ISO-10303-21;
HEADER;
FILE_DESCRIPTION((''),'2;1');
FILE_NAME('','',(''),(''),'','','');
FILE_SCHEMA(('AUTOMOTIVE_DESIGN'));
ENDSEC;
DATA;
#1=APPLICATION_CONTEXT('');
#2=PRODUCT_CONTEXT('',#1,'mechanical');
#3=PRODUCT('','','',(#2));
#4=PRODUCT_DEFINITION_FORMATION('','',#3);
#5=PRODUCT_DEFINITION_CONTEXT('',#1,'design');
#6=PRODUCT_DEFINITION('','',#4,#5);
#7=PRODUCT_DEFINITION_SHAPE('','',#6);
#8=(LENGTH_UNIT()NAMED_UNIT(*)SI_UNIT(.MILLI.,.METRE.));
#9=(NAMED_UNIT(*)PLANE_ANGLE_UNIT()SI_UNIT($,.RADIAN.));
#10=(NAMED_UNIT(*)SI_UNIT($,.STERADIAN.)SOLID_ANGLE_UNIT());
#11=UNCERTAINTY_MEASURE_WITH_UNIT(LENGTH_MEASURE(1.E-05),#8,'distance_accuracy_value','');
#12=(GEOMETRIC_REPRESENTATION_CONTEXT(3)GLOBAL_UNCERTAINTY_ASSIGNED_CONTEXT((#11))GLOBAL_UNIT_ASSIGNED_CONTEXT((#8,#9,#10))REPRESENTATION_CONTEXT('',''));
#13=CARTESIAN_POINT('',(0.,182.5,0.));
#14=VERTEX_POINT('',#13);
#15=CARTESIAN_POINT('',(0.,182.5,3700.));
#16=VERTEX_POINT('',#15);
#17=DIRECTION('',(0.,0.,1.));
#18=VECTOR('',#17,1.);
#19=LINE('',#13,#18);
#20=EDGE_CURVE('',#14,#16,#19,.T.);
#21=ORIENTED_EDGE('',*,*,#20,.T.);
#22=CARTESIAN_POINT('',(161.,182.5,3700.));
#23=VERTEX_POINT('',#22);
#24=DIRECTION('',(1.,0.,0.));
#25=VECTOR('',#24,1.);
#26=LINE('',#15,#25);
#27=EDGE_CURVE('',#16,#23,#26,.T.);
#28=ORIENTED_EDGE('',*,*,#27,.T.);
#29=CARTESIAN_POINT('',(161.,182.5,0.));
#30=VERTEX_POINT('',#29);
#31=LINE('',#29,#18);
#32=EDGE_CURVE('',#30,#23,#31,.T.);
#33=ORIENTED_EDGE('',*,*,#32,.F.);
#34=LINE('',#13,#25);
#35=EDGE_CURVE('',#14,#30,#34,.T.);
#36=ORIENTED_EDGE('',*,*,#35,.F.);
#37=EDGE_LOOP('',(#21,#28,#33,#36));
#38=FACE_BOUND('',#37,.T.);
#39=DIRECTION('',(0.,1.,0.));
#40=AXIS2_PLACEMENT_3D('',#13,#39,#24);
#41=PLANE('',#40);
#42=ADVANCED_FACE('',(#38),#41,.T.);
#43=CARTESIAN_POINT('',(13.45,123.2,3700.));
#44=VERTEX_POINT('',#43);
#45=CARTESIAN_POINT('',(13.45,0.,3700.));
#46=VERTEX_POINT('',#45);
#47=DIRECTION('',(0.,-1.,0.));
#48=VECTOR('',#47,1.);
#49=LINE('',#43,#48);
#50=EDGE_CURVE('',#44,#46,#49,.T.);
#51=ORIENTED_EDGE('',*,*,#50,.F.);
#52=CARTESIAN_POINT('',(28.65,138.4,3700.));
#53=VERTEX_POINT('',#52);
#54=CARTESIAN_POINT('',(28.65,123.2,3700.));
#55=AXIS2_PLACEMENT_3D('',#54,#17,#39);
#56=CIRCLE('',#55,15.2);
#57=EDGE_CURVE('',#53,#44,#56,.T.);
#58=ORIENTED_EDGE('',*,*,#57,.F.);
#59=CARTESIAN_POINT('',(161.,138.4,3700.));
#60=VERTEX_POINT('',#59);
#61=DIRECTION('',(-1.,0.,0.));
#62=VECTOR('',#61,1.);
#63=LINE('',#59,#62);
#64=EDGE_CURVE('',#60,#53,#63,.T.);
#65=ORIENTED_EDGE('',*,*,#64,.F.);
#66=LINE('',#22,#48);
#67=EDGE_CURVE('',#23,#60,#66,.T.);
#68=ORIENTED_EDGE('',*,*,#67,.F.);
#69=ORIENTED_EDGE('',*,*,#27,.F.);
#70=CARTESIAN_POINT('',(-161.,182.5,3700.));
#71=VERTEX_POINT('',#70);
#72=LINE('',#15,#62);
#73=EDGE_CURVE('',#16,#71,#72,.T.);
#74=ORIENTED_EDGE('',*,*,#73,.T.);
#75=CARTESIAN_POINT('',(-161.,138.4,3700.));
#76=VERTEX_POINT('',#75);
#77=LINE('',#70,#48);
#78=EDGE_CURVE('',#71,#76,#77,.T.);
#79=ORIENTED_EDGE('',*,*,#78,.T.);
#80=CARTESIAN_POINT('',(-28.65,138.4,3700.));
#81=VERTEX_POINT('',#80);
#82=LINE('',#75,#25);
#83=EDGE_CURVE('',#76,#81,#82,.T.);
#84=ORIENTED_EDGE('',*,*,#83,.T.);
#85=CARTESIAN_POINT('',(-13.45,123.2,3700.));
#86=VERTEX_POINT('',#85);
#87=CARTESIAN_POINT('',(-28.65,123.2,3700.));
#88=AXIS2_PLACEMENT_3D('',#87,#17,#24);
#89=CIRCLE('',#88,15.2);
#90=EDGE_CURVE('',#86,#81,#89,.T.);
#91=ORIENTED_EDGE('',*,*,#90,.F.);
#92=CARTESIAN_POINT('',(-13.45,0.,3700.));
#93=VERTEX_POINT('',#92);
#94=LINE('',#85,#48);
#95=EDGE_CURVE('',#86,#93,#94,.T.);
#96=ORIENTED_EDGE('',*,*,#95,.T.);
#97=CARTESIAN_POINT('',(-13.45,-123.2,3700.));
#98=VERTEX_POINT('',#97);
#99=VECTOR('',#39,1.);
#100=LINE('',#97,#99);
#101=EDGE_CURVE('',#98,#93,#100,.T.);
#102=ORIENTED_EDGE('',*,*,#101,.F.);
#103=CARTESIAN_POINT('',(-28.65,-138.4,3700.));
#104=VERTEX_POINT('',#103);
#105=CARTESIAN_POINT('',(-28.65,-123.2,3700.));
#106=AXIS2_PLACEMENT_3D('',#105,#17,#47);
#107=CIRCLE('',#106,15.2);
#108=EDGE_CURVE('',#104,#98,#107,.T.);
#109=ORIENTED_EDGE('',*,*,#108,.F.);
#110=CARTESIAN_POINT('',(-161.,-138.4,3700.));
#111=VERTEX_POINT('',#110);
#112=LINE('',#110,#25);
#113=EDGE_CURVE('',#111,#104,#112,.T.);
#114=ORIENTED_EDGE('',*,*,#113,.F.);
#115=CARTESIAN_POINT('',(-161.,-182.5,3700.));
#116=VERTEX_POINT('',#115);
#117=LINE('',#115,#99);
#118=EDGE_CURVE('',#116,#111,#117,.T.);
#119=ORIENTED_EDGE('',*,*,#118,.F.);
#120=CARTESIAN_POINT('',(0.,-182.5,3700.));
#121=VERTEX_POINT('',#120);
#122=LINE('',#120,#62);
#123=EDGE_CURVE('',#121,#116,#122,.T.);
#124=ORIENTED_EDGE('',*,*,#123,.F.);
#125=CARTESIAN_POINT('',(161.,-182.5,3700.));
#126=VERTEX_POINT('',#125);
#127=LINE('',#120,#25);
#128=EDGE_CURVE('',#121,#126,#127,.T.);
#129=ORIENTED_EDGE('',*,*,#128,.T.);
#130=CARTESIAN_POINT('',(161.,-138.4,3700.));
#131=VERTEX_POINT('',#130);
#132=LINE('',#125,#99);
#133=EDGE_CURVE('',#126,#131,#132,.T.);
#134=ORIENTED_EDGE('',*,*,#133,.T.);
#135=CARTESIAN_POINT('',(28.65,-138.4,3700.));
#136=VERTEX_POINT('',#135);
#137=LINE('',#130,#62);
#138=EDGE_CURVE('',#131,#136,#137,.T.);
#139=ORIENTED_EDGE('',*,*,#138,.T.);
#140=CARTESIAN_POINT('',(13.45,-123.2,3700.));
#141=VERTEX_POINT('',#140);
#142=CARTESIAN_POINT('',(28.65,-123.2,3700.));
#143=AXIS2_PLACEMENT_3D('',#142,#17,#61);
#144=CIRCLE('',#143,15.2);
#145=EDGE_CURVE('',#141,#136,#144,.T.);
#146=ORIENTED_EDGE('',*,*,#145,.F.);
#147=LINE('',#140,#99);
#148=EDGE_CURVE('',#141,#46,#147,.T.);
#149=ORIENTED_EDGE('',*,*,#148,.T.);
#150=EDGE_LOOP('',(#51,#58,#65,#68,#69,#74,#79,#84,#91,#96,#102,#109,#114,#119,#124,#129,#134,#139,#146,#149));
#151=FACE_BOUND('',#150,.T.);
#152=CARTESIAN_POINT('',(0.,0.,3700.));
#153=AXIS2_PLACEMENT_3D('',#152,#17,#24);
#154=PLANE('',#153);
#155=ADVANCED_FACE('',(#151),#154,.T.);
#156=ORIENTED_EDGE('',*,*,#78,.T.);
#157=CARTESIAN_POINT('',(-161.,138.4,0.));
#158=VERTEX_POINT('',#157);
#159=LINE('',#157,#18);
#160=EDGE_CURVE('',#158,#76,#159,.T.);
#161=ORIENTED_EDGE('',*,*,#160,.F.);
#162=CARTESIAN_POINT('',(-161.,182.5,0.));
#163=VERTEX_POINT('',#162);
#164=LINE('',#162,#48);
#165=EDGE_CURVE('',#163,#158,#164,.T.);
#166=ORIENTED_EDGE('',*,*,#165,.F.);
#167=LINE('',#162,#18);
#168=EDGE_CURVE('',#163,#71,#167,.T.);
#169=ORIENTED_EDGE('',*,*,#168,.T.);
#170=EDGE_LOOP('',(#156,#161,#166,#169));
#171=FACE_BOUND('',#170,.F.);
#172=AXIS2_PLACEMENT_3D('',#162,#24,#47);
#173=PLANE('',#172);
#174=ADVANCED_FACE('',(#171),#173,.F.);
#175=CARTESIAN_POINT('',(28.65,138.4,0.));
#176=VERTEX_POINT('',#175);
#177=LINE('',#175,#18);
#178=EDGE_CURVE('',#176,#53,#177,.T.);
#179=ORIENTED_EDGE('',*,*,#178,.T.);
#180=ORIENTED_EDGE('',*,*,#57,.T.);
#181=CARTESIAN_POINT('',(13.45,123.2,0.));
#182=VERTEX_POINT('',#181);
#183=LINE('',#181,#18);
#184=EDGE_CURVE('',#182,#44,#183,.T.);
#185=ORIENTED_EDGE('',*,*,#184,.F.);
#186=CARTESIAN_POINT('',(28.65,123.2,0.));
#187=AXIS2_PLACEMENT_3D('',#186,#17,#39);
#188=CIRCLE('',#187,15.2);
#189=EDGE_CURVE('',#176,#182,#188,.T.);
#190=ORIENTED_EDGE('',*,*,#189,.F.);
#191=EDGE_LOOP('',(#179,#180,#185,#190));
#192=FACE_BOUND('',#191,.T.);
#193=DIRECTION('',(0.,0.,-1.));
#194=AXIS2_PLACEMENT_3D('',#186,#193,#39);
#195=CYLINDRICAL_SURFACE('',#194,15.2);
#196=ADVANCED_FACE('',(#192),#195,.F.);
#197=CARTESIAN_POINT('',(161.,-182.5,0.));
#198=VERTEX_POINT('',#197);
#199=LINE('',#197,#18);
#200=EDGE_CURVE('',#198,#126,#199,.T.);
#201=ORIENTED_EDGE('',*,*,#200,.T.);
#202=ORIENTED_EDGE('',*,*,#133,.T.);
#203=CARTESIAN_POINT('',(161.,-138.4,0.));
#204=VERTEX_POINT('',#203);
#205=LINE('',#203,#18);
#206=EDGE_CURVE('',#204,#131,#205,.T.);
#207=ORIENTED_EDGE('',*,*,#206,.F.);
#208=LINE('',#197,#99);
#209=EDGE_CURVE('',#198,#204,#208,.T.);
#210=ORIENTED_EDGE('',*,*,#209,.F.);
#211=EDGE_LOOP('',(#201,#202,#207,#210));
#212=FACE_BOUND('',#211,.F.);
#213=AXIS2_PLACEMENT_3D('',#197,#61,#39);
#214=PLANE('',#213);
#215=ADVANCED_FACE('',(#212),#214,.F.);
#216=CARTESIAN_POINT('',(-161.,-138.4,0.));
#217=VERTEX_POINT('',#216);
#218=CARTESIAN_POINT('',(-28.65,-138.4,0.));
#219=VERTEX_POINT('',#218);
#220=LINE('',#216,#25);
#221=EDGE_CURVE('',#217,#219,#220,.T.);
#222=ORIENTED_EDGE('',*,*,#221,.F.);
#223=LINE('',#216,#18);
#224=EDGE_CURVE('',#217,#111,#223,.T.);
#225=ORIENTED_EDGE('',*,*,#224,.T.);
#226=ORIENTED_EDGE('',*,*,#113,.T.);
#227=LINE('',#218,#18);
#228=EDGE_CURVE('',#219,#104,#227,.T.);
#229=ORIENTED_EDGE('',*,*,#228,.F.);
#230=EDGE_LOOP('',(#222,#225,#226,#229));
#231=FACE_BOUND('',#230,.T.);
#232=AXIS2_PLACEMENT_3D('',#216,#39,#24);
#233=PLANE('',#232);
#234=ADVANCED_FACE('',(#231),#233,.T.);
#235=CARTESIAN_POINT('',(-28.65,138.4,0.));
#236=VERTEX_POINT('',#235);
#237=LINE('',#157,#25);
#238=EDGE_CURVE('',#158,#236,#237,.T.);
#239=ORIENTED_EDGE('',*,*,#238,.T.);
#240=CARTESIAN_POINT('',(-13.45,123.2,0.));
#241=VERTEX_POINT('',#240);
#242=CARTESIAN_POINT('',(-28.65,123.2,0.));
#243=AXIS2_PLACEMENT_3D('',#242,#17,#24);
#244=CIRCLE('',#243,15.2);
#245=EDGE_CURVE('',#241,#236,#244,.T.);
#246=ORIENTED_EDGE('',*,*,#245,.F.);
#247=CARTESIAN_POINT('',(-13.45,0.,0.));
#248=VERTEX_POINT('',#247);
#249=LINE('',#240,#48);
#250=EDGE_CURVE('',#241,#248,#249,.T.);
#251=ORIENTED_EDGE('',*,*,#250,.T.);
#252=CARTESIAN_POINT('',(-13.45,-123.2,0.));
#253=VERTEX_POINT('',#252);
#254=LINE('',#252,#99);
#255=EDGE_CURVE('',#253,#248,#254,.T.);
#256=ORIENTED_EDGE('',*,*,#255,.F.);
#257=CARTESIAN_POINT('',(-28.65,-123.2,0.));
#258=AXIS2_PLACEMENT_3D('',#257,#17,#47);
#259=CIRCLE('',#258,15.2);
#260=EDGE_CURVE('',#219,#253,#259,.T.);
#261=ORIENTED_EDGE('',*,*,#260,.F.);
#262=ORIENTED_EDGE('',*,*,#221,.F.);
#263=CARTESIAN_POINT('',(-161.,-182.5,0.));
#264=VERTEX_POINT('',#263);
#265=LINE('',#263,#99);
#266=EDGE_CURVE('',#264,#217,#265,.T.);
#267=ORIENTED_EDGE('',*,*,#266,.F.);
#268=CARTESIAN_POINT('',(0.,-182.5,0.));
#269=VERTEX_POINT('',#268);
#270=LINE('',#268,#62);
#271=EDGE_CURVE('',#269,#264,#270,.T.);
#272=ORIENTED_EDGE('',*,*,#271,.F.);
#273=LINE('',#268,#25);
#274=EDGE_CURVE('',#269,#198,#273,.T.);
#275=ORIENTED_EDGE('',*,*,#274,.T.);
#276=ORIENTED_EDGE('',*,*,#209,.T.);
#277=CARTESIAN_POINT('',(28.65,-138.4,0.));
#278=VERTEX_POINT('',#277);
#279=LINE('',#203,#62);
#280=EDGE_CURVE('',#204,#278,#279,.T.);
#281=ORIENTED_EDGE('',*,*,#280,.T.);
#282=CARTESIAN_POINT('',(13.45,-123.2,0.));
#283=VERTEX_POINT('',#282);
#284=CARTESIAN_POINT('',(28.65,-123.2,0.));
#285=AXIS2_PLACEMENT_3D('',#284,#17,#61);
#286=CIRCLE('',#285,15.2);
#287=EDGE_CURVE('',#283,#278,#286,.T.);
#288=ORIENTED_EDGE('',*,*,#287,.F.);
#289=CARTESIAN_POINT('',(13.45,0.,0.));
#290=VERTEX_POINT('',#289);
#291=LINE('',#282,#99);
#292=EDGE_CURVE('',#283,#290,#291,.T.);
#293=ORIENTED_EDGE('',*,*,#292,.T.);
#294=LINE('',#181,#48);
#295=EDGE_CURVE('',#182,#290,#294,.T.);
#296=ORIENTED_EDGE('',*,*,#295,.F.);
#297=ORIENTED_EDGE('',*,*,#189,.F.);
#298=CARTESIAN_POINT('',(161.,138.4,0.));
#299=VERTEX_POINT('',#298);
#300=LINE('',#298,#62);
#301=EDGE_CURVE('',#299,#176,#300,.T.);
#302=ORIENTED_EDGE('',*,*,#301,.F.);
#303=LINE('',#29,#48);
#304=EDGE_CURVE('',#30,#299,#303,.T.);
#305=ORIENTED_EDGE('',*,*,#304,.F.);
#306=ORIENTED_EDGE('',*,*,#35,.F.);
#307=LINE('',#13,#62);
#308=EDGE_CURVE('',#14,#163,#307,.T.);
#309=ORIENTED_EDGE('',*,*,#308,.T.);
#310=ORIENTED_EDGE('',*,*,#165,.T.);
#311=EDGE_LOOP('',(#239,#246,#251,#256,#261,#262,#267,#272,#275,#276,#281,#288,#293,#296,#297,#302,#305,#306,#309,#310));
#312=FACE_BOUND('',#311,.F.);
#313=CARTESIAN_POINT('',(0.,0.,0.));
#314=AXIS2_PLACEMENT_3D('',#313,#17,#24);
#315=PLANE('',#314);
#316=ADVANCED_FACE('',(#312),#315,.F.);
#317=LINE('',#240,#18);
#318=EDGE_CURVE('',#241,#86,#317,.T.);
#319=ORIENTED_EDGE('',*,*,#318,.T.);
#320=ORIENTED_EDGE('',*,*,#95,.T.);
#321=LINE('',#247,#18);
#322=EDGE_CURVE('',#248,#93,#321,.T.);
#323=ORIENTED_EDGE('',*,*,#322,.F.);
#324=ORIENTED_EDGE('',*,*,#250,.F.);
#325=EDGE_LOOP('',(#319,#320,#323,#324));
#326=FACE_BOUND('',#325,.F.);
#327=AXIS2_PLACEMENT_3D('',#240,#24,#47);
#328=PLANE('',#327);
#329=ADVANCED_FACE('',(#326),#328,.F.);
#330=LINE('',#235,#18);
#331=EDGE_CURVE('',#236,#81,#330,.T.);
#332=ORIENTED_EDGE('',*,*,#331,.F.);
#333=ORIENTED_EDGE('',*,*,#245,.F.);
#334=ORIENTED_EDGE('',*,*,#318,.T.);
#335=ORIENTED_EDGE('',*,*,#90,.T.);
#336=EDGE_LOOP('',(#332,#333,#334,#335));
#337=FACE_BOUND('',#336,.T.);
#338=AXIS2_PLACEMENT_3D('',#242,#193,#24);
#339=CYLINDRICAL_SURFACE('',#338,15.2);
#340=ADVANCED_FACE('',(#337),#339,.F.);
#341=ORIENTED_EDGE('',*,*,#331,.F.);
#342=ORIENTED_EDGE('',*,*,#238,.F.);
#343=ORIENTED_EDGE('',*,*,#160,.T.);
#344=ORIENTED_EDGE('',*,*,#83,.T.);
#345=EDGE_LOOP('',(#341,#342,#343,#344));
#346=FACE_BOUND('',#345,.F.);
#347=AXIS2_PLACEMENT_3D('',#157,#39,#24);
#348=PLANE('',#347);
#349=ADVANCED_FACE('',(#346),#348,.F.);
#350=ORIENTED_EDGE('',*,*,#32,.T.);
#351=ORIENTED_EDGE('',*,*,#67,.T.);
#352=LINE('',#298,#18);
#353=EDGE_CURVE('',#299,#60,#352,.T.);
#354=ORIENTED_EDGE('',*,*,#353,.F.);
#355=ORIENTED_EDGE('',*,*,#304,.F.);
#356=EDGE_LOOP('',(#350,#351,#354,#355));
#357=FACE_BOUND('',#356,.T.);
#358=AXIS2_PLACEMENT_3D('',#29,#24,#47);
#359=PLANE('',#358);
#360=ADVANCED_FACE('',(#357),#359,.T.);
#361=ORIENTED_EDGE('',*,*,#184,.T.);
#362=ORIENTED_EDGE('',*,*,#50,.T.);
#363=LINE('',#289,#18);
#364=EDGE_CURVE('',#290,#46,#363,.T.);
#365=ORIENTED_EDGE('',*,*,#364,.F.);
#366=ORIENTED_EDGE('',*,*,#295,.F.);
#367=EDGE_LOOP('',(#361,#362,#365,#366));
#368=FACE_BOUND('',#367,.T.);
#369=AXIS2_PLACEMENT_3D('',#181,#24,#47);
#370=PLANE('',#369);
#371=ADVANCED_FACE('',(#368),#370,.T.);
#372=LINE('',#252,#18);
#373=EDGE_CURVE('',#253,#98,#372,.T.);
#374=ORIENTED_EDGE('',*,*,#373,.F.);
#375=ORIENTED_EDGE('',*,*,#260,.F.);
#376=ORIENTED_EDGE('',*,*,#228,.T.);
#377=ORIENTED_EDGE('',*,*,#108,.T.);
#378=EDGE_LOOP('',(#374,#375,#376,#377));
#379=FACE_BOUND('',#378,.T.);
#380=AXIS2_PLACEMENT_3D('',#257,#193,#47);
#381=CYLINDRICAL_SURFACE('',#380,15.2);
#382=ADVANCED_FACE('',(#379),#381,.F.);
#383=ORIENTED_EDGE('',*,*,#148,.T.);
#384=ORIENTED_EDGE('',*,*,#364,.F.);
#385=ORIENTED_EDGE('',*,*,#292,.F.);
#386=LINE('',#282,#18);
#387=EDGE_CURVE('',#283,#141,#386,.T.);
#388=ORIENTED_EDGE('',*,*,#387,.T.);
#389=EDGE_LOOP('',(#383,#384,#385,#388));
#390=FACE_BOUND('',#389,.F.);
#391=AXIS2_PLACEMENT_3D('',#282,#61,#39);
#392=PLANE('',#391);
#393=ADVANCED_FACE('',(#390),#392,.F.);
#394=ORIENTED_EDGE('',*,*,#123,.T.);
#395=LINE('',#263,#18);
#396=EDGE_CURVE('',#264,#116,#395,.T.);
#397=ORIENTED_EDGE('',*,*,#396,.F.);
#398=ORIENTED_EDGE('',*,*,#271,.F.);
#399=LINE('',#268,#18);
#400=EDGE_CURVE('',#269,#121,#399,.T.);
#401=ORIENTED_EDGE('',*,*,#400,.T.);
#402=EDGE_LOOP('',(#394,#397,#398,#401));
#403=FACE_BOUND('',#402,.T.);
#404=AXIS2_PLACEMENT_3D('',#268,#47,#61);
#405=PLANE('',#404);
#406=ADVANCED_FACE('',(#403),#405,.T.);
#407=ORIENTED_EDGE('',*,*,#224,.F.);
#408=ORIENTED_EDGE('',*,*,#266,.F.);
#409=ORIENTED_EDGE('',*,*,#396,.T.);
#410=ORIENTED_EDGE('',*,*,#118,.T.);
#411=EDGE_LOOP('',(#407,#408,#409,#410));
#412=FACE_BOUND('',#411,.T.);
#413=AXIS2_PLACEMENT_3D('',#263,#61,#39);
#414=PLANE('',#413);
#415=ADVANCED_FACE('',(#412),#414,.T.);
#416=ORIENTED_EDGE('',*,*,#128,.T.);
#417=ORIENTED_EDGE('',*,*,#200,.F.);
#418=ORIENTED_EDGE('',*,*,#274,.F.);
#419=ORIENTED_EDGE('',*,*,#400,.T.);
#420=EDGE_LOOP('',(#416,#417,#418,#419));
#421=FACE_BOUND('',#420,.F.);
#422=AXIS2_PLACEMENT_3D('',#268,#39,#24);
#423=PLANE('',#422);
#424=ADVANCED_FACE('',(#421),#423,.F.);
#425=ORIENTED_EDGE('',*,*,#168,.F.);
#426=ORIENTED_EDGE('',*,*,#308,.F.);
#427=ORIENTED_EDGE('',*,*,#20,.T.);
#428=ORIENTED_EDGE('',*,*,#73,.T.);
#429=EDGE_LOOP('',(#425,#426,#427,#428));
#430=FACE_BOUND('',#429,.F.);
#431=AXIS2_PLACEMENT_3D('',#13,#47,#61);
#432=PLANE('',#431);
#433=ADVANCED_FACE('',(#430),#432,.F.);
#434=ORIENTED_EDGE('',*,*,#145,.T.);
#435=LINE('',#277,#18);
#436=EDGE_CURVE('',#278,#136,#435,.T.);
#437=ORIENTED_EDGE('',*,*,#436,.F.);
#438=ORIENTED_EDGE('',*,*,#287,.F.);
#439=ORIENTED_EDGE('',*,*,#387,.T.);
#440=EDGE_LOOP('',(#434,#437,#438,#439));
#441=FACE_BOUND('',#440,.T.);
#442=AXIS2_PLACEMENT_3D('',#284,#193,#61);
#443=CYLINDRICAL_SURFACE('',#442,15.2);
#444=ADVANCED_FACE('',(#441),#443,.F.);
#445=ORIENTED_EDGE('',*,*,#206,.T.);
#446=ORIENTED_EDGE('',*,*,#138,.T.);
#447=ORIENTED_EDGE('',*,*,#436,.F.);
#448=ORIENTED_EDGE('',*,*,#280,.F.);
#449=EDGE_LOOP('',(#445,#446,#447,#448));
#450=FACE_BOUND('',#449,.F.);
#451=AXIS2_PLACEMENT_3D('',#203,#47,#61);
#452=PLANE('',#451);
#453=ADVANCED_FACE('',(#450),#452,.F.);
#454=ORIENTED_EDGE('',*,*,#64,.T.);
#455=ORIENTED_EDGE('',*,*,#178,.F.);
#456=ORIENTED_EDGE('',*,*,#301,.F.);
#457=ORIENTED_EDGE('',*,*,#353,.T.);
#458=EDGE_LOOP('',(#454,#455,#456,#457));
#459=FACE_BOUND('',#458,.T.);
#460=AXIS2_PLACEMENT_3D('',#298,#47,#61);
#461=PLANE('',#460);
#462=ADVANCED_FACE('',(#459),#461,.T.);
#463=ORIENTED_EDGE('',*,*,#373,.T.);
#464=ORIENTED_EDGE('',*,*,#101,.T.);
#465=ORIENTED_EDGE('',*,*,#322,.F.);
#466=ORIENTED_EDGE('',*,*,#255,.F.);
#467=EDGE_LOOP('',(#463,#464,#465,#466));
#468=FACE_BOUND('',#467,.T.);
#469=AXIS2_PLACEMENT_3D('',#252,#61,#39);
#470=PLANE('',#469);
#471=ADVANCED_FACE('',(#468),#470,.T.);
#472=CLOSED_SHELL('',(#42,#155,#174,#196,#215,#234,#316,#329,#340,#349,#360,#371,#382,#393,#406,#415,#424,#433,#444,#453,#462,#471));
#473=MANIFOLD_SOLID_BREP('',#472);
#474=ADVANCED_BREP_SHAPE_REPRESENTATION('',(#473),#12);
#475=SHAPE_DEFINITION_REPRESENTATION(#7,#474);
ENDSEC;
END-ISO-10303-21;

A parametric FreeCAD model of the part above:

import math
import FreeCAD as App
import Part
import Sketcher

V = App.Vector
Q = App.Units.Quantity

doc = App.newDocument("Part")
body = doc.addObject("PartDesign::Body", "Body")

sketch1 = body.newObject("Sketcher::SketchObject", "Sketch")
sketch1.AttachmentSupport = (doc.getObject("XY_Plane"), [""])
sketch1.MapMode = "FlatFace"
sketch1.addGeometry(Part.LineSegment(V(-161, -138, 0), V(-161, -182, 0)), False)
sketch1.addGeometry(Part.LineSegment(V(-161, -182, 0), V(161, -182, 0)), False)
sketch1.addGeometry(Part.LineSegment(V(161, -182, 0), V(161, -138, 0)), False)
sketch1.addGeometry(Part.LineSegment(V(161, -138, 0), V(29, -138, 0)), False)
sketch1.addGeometry(Part.ArcOfCircle(Part.Circle(V(29, -123, 0), V(0, 0, 1), 15), math.radians(180), math.radians(270)), False)
sketch1.addGeometry(Part.LineSegment(V(13, -123, 0), V(13, 123, 0)), False)
sketch1.addGeometry(Part.ArcOfCircle(Part.Circle(V(29, 123, 0), V(0, 0, 1), 15), math.radians(90), math.radians(180)), False)
sketch1.addGeometry(Part.LineSegment(V(29, 138, 0), V(161, 138, 0)), False)
sketch1.addGeometry(Part.LineSegment(V(161, 138, 0), V(161, 182, 0)), False)
sketch1.addGeometry(Part.LineSegment(V(161, 182, 0), V(-161, 182, 0)), False)
sketch1.addGeometry(Part.LineSegment(V(-161, 182, 0), V(-161, 138, 0)), False)
sketch1.addGeometry(Part.LineSegment(V(-161, 138, 0), V(-29, 138, 0)), False)
sketch1.addGeometry(Part.ArcOfCircle(Part.Circle(V(-29, 123, 0), V(0, 0, 1), 15), math.radians(0), math.radians(90)), False)
sketch1.addGeometry(Part.LineSegment(V(-13, 123, 0), V(-13, -123, 0)), False)
sketch1.addGeometry(Part.ArcOfCircle(Part.Circle(V(-29, -123, 0), V(0, 0, 1), 15), math.radians(-90), math.radians(0)), False)
sketch1.addGeometry(Part.LineSegment(V(-29, -138, 0), V(-161, -138, 0)), False)
sketch1.addConstraint(Sketcher.Constraint("Coincident", 0, 2, 1, 1))
sketch1.addConstraint(Sketcher.Constraint("Coincident", 1, 2, 2, 1))
sketch1.addConstraint(Sketcher.Constraint("Coincident", 2, 2, 3, 1))
sketch1.addConstraint(Sketcher.Constraint("Tangent", 3, 2, 4, 2))
sketch1.addConstraint(Sketcher.Constraint("Tangent", 4, 1, 5, 1))
sketch1.addConstraint(Sketcher.Constraint("Tangent", 5, 2, 6, 2))
sketch1.addConstraint(Sketcher.Constraint("Tangent", 6, 1, 7, 1))
sketch1.addConstraint(Sketcher.Constraint("Coincident", 7, 2, 8, 1))
sketch1.addConstraint(Sketcher.Constraint("Coincident", 8, 2, 9, 1))
sketch1.addConstraint(Sketcher.Constraint("Coincident", 9, 2, 10, 1))
sketch1.addConstraint(Sketcher.Constraint("Coincident", 10, 2, 11, 1))
sketch1.addConstraint(Sketcher.Constraint("Tangent", 11, 2, 12, 2))
sketch1.addConstraint(Sketcher.Constraint("Tangent", 12, 1, 13, 1))
sketch1.addConstraint(Sketcher.Constraint("Tangent", 13, 2, 14, 2))
sketch1.addConstraint(Sketcher.Constraint("Tangent", 14, 1, 15, 1))
sketch1.addConstraint(Sketcher.Constraint("Coincident", 15, 2, 0, 1))
sketch1.addConstraint(Sketcher.Constraint("Vertical", 0))
sketch1.addConstraint(Sketcher.Constraint("Horizontal", 1))
sketch1.addConstraint(Sketcher.Constraint("Vertical", 2))
sketch1.addConstraint(Sketcher.Constraint("Horizontal", 3))
sketch1.addConstraint(Sketcher.Constraint("Vertical", 5))
sketch1.addConstraint(Sketcher.Constraint("Horizontal", 7))
sketch1.addConstraint(Sketcher.Constraint("Vertical", 8))
sketch1.addConstraint(Sketcher.Constraint("Horizontal", 9))
sketch1.addConstraint(Sketcher.Constraint("Vertical", 10))
sketch1.addConstraint(Sketcher.Constraint("Horizontal", 11))
sketch1.addConstraint(Sketcher.Constraint("Vertical", 13))
sketch1.addConstraint(Sketcher.Constraint("Horizontal", 15))
sketch1.addConstraint(Sketcher.Constraint("Equal", 4, 6))
sketch1.addConstraint(Sketcher.Constraint("Equal", 6, 12))
sketch1.addConstraint(Sketcher.Constraint("Equal", 12, 14))
sketch1.addConstraint(Sketcher.Constraint("Symmetric", 4, 3, 12, 3, -1, 1))
sketch1.addConstraint(Sketcher.Constraint("Symmetric", 0, 2, 8, 2, -1, 1))
sketch1.addConstraint(Sketcher.Constraint("Symmetric", 7, 2, 10, 2, -2))
sketch1.addConstraint(Sketcher.Constraint("Symmetric", 2, 2, 15, 2, -2))
sketch1.addConstraint(Sketcher.Constraint("Radius", 4, Q("15.2 mm")))
sketch1.addConstraint(Sketcher.Constraint("DistanceY", 0, 2, 0, 1, Q("44.1 mm")))
sketch1.addConstraint(Sketcher.Constraint("DistanceX", 0, 2, -1, 1, Q("161 mm")))
sketch1.addConstraint(Sketcher.Constraint("DistanceY", 0, 2, -1, 1, Q("182.5 mm")))
sketch1.addConstraint(Sketcher.Constraint("DistanceX", -1, 1, 4, 1, Q("13.45 mm")))
pad1 = body.newObject("PartDesign::Pad", "Pad")
pad1.Profile = sketch1
pad1.Length = 3700

doc.recompute()
